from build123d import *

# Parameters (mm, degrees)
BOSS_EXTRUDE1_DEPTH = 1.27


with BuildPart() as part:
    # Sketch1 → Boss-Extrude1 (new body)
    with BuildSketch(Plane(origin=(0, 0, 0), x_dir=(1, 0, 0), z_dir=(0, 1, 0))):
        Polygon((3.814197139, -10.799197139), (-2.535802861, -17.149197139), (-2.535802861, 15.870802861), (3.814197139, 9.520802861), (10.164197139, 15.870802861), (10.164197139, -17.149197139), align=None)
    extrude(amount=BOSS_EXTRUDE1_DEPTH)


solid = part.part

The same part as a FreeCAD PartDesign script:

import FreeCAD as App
import Part
import Sketcher

V = App.Vector
Q = App.Units.Quantity


def add_polygon(sketch, points):
    """Adds a closed chain of lines whose ends are joined by coincident constraints."""
    first, n = sketch.GeometryCount, len(points)
    for a, b in zip(points, points[1:] + points[:1]):
        sketch.addGeometry(Part.LineSegment(App.Vector(*a, 0), App.Vector(*b, 0)), False)
    for i in range(n):
        sketch.addConstraint(Sketcher.Constraint("Coincident", first + i, 2, first + (i + 1) % n, 1))

doc = App.newDocument("Part")
body = doc.addObject("PartDesign::Body", "Body")

# Sketch on XZ plane
sketch1 = body.newObject("Sketcher::SketchObject", "Sketch")
sketch1.AttachmentSupport = (doc.getObject("XZ_Plane"), [""])
sketch1.MapMode = "FlatFace"
add_polygon(sketch1, [(-2.535803, 17.149197), (3.814197, 10.799197), (10.164197, 17.149197), (10.164197, -15.870803), (3.814197, -9.520803), (-2.535803, -15.870803)])  # lines 0-5
sketch1.addConstraint(Sketcher.Constraint("Vertical", 2))
sketch1.addConstraint(Sketcher.Constraint("Vertical", 5))
sketch1.addConstraint(Sketcher.Constraint("Perpendicular", 0, 1))
sketch1.addConstraint(Sketcher.Constraint("Perpendicular", 1, 3))
sketch1.addConstraint(Sketcher.Constraint("Perpendicular", 3, 4))
sketch1.addConstraint(Sketcher.Constraint("Horizontal", 2, 2, 4, 2))
sketch1.addConstraint(Sketcher.Constraint("Horizontal", 1, 2, 5, 2))
sketch1.addConstraint(Sketcher.Constraint("Vertical", 0, 2, 3, 2))
sketch1.addConstraint(Sketcher.Constraint("DistanceY", 2, 2, 2, 1, Q("1.3 in")))
sketch1.addConstraint(Sketcher.Constraint("DistanceY", 3, 2, 0, 2, Q("0.8 in")))
sketch1.addConstraint(Sketcher.Constraint("DistanceX", -1, 1, 0, 2, 3.814197))
sketch1.addConstraint(Sketcher.Constraint("DistanceY", -1, 1, 0, 2, 10.799197))
pad1 = body.newObject("PartDesign::Pad", "Pad")
pad1.Profile = sketch1
pad1.Length = Q("0.05 in")
pad1.Reversed = True

doc.recompute()
